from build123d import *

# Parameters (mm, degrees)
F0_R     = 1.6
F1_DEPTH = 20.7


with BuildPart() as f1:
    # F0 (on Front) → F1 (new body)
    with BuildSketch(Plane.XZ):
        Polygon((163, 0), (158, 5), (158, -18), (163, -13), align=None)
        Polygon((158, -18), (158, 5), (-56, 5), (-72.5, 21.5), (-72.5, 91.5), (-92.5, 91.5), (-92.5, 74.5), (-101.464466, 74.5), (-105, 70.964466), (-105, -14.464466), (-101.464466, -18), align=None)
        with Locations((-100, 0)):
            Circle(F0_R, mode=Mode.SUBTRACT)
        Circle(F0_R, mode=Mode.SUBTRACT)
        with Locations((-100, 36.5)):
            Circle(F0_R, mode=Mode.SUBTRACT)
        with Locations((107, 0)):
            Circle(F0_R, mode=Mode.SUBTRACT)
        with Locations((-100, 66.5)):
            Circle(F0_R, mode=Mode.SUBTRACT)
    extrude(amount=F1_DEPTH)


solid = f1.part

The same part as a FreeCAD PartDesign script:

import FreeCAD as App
import Part
import Sketcher
from FreeCAD import Vector

doc = App.newDocument("Part")
params = doc.addObject("Spreadsheet::Sheet", "Params")
for row, (alias, value) in enumerate([
    ("sketch1_diameter", "3.2 mm"),
    ("sketch1_width", "214 mm"),
    ("sketch1_width2", "20 mm"),
    ("sketch1_height", "70 mm"),
    ("sketch1_height2", "17 mm"),
    ("pad1_length", "20.7 mm"),
], start=1):
    params.set(f"A{row}", alias)
    params.set(f"B{row}", "=" + value)
    params.setAlias(f"B{row}", alias)

body = doc.addObject("PartDesign::Body", "Body")

# Sketch on XZ plane
sketch1 = doc.addObject("Sketcher::SketchObject", "Sketch")
body.addObject(sketch1)
sketch1.AttachmentSupport = (doc.XZ_Plane, [""])
sketch1.MapMode = "FlatFace"
sketch1.addGeometry([
    Part.LineSegment(Vector(163, 0, 0), Vector(158, 5, 0)),  # 0
    Part.LineSegment(Vector(158, 5, 0), Vector(-56, 5, 0)),  # 1
    Part.LineSegment(Vector(-56, 5, 0), Vector(-72.5, 21.5, 0)),  # 2
    Part.LineSegment(Vector(-72.5, 21.5, 0), Vector(-72.5, 91.5, 0)),  # 3
    Part.LineSegment(Vector(-72.5, 91.5, 0), Vector(-92.5, 91.5, 0)),  # 4
    Part.LineSegment(Vector(-92.5, 91.5, 0), Vector(-92.5, 74.5, 0)),  # 5
    Part.LineSegment(Vector(-92.5, 74.5, 0), Vector(-101.464466, 74.5, 0)),  # 6
    Part.LineSegment(Vector(-101.464466, 74.5, 0), Vector(-105, 70.964466, 0)),  # 7
    Part.LineSegment(Vector(-105, 70.964466, 0), Vector(-105, -14.464466, 0)),  # 8
    Part.LineSegment(Vector(-105, -14.464466, 0), Vector(-101.464466, -18, 0)),  # 9
    Part.LineSegment(Vector(-101.464466, -18, 0), Vector(158, -18, 0)),  # 10
    Part.LineSegment(Vector(158, -18, 0), Vector(163, -13, 0)),  # 11
    Part.LineSegment(Vector(163, -13, 0), Vector(163, 0, 0)),  # 12
    Part.Circle(Vector(-100, 0, 0), Vector(0, 0, 1), 1.6),  # 13
    Part.Circle(Vector(0, 0, 0), Vector(0, 0, 1), 1.6),  # 14
    Part.Circle(Vector(107, 0, 0), Vector(0, 0, 1), 1.6),  # 15
    Part.Circle(Vector(-100, 36.5, 0), Vector(0, 0, 1), 1.6),  # 16
    Part.Circle(Vector(-100, 66.5, 0), Vector(0, 0, 1), 1.6),  # 17
], False)
sketch1.addConstraint([
    Sketcher.Constraint("Coincident", 0, 2, 1, 1),
    Sketcher.Constraint("Coincident", 1, 2, 2, 1),
    Sketcher.Constraint("Coincident", 2, 2, 3, 1),
    Sketcher.Constraint("Coincident", 3, 2, 4, 1),
    Sketcher.Constraint("Coincident", 4, 2, 5, 1),
    Sketcher.Constraint("Coincident", 5, 2, 6, 1),
    Sketcher.Constraint("Coincident", 6, 2, 7, 1),
    Sketcher.Constraint("Coincident", 7, 2, 8, 1),
    Sketcher.Constraint("Coincident", 8, 2, 9, 1),
    Sketcher.Constraint("Coincident", 9, 2, 10, 1),
    Sketcher.Constraint("Coincident", 10, 2, 11, 1),
    Sketcher.Constraint("Coincident", 11, 2, 12, 1),
    Sketcher.Constraint("Coincident", 12, 2, 0, 1),
    Sketcher.Constraint("Horizontal", 1),
    Sketcher.Constraint("Vertical", 3),
    Sketcher.Constraint("Horizontal", 4),
    Sketcher.Constraint("Vertical", 5),
    Sketcher.Constraint("Horizontal", 6),
    Sketcher.Constraint("Vertical", 8),
    Sketcher.Constraint("Horizontal", 10),
    Sketcher.Constraint("Vertical", 12),
    Sketcher.Constraint("Coincident", 14, 3, -1, 1),
    Sketcher.Constraint("Equal", 13, 14),
    Sketcher.Constraint("Equal", 14, 15),
    Sketcher.Constraint("Equal", 15, 16),
    Sketcher.Constraint("Equal", 16, 17),
    Sketcher.Constraint("PointOnObject", 13, 3, -1),
    Sketcher.Constraint("PointOnObject", 15, 3, -1),
    Sketcher.Constraint("PointOnObject", 12, 2, -1),
    Sketcher.Constraint("Parallel", 0, 2),
    Sketcher.Constraint("Perpendicular", 2, 7),
    Sketcher.Constraint("Perpendicular", 7, 9),
    Sketcher.Constraint("Perpendicular", 9, 11),
    Sketcher.Constraint("Vertical", 13, 3, 16, 3),
    Sketcher.Constraint("Vertical", 16, 3, 17, 3),
    Sketcher.Constraint("Vertical", 6, 2, 9, 2),
    Sketcher.Constraint("Vertical", 0, 2, 10, 2),
    Sketcher.Constraint("Equal", 7, 9),
    Sketcher.Constraint("Diameter", 13, 3.2),
    Sketcher.Constraint("DistanceX", 1, 2, 1, 1, 214.0),
    Sketcher.Constraint("DistanceX", 4, 2, 4, 1, 20.0),
    Sketcher.Constraint("DistanceY", 3, 1, 3, 2, 70.0),
    Sketcher.Constraint("DistanceY", 5, 2, 5, 1, 17.0),
    Sketcher.Constraint("DistanceY", 12, 1, 12, 2, 13.0),
    Sketcher.Constraint("Distance", 7, 5.0),
    Sketcher.Constraint("DistanceX", 13, 3, -1, 1, 100.0),
    Sketcher.Constraint("DistanceX", -1, 1, 15, 3, 107.0),
    Sketcher.Constraint("DistanceX", -1, 1, 0, 2, 158.0),
    Sketcher.Constraint("DistanceY", -1, 1, 0, 2, 5.0),
    Sketcher.Constraint("DistanceX", 7, 2, -1, 1, 105.0),
    Sketcher.Constraint("DistanceY", 16, 3, 17, 3, 30.0),
    Sketcher.Constraint("DistanceY", 2, 2, 16, 3, 15.0),
    Sketcher.Constraint("DistanceY", -1, 1, 16, 3, 36.5),
])
sketch1.setExpression("Constraints[38]", "Params.sketch1_diameter")
sketch1.setExpression("Constraints[39]", "Params.sketch1_width")
sketch1.setExpression("Constraints[40]", "Params.sketch1_width2")
sketch1.setExpression("Constraints[41]", "Params.sketch1_height")
sketch1.setExpression("Constraints[42]", "Params.sketch1_height2")
pad1 = doc.addObject("PartDesign::Pad", "Pad")
body.addObject(pad1)
pad1.Profile = sketch1
pad1.setExpression("Length", "Params.pad1_length")

doc.recompute()
